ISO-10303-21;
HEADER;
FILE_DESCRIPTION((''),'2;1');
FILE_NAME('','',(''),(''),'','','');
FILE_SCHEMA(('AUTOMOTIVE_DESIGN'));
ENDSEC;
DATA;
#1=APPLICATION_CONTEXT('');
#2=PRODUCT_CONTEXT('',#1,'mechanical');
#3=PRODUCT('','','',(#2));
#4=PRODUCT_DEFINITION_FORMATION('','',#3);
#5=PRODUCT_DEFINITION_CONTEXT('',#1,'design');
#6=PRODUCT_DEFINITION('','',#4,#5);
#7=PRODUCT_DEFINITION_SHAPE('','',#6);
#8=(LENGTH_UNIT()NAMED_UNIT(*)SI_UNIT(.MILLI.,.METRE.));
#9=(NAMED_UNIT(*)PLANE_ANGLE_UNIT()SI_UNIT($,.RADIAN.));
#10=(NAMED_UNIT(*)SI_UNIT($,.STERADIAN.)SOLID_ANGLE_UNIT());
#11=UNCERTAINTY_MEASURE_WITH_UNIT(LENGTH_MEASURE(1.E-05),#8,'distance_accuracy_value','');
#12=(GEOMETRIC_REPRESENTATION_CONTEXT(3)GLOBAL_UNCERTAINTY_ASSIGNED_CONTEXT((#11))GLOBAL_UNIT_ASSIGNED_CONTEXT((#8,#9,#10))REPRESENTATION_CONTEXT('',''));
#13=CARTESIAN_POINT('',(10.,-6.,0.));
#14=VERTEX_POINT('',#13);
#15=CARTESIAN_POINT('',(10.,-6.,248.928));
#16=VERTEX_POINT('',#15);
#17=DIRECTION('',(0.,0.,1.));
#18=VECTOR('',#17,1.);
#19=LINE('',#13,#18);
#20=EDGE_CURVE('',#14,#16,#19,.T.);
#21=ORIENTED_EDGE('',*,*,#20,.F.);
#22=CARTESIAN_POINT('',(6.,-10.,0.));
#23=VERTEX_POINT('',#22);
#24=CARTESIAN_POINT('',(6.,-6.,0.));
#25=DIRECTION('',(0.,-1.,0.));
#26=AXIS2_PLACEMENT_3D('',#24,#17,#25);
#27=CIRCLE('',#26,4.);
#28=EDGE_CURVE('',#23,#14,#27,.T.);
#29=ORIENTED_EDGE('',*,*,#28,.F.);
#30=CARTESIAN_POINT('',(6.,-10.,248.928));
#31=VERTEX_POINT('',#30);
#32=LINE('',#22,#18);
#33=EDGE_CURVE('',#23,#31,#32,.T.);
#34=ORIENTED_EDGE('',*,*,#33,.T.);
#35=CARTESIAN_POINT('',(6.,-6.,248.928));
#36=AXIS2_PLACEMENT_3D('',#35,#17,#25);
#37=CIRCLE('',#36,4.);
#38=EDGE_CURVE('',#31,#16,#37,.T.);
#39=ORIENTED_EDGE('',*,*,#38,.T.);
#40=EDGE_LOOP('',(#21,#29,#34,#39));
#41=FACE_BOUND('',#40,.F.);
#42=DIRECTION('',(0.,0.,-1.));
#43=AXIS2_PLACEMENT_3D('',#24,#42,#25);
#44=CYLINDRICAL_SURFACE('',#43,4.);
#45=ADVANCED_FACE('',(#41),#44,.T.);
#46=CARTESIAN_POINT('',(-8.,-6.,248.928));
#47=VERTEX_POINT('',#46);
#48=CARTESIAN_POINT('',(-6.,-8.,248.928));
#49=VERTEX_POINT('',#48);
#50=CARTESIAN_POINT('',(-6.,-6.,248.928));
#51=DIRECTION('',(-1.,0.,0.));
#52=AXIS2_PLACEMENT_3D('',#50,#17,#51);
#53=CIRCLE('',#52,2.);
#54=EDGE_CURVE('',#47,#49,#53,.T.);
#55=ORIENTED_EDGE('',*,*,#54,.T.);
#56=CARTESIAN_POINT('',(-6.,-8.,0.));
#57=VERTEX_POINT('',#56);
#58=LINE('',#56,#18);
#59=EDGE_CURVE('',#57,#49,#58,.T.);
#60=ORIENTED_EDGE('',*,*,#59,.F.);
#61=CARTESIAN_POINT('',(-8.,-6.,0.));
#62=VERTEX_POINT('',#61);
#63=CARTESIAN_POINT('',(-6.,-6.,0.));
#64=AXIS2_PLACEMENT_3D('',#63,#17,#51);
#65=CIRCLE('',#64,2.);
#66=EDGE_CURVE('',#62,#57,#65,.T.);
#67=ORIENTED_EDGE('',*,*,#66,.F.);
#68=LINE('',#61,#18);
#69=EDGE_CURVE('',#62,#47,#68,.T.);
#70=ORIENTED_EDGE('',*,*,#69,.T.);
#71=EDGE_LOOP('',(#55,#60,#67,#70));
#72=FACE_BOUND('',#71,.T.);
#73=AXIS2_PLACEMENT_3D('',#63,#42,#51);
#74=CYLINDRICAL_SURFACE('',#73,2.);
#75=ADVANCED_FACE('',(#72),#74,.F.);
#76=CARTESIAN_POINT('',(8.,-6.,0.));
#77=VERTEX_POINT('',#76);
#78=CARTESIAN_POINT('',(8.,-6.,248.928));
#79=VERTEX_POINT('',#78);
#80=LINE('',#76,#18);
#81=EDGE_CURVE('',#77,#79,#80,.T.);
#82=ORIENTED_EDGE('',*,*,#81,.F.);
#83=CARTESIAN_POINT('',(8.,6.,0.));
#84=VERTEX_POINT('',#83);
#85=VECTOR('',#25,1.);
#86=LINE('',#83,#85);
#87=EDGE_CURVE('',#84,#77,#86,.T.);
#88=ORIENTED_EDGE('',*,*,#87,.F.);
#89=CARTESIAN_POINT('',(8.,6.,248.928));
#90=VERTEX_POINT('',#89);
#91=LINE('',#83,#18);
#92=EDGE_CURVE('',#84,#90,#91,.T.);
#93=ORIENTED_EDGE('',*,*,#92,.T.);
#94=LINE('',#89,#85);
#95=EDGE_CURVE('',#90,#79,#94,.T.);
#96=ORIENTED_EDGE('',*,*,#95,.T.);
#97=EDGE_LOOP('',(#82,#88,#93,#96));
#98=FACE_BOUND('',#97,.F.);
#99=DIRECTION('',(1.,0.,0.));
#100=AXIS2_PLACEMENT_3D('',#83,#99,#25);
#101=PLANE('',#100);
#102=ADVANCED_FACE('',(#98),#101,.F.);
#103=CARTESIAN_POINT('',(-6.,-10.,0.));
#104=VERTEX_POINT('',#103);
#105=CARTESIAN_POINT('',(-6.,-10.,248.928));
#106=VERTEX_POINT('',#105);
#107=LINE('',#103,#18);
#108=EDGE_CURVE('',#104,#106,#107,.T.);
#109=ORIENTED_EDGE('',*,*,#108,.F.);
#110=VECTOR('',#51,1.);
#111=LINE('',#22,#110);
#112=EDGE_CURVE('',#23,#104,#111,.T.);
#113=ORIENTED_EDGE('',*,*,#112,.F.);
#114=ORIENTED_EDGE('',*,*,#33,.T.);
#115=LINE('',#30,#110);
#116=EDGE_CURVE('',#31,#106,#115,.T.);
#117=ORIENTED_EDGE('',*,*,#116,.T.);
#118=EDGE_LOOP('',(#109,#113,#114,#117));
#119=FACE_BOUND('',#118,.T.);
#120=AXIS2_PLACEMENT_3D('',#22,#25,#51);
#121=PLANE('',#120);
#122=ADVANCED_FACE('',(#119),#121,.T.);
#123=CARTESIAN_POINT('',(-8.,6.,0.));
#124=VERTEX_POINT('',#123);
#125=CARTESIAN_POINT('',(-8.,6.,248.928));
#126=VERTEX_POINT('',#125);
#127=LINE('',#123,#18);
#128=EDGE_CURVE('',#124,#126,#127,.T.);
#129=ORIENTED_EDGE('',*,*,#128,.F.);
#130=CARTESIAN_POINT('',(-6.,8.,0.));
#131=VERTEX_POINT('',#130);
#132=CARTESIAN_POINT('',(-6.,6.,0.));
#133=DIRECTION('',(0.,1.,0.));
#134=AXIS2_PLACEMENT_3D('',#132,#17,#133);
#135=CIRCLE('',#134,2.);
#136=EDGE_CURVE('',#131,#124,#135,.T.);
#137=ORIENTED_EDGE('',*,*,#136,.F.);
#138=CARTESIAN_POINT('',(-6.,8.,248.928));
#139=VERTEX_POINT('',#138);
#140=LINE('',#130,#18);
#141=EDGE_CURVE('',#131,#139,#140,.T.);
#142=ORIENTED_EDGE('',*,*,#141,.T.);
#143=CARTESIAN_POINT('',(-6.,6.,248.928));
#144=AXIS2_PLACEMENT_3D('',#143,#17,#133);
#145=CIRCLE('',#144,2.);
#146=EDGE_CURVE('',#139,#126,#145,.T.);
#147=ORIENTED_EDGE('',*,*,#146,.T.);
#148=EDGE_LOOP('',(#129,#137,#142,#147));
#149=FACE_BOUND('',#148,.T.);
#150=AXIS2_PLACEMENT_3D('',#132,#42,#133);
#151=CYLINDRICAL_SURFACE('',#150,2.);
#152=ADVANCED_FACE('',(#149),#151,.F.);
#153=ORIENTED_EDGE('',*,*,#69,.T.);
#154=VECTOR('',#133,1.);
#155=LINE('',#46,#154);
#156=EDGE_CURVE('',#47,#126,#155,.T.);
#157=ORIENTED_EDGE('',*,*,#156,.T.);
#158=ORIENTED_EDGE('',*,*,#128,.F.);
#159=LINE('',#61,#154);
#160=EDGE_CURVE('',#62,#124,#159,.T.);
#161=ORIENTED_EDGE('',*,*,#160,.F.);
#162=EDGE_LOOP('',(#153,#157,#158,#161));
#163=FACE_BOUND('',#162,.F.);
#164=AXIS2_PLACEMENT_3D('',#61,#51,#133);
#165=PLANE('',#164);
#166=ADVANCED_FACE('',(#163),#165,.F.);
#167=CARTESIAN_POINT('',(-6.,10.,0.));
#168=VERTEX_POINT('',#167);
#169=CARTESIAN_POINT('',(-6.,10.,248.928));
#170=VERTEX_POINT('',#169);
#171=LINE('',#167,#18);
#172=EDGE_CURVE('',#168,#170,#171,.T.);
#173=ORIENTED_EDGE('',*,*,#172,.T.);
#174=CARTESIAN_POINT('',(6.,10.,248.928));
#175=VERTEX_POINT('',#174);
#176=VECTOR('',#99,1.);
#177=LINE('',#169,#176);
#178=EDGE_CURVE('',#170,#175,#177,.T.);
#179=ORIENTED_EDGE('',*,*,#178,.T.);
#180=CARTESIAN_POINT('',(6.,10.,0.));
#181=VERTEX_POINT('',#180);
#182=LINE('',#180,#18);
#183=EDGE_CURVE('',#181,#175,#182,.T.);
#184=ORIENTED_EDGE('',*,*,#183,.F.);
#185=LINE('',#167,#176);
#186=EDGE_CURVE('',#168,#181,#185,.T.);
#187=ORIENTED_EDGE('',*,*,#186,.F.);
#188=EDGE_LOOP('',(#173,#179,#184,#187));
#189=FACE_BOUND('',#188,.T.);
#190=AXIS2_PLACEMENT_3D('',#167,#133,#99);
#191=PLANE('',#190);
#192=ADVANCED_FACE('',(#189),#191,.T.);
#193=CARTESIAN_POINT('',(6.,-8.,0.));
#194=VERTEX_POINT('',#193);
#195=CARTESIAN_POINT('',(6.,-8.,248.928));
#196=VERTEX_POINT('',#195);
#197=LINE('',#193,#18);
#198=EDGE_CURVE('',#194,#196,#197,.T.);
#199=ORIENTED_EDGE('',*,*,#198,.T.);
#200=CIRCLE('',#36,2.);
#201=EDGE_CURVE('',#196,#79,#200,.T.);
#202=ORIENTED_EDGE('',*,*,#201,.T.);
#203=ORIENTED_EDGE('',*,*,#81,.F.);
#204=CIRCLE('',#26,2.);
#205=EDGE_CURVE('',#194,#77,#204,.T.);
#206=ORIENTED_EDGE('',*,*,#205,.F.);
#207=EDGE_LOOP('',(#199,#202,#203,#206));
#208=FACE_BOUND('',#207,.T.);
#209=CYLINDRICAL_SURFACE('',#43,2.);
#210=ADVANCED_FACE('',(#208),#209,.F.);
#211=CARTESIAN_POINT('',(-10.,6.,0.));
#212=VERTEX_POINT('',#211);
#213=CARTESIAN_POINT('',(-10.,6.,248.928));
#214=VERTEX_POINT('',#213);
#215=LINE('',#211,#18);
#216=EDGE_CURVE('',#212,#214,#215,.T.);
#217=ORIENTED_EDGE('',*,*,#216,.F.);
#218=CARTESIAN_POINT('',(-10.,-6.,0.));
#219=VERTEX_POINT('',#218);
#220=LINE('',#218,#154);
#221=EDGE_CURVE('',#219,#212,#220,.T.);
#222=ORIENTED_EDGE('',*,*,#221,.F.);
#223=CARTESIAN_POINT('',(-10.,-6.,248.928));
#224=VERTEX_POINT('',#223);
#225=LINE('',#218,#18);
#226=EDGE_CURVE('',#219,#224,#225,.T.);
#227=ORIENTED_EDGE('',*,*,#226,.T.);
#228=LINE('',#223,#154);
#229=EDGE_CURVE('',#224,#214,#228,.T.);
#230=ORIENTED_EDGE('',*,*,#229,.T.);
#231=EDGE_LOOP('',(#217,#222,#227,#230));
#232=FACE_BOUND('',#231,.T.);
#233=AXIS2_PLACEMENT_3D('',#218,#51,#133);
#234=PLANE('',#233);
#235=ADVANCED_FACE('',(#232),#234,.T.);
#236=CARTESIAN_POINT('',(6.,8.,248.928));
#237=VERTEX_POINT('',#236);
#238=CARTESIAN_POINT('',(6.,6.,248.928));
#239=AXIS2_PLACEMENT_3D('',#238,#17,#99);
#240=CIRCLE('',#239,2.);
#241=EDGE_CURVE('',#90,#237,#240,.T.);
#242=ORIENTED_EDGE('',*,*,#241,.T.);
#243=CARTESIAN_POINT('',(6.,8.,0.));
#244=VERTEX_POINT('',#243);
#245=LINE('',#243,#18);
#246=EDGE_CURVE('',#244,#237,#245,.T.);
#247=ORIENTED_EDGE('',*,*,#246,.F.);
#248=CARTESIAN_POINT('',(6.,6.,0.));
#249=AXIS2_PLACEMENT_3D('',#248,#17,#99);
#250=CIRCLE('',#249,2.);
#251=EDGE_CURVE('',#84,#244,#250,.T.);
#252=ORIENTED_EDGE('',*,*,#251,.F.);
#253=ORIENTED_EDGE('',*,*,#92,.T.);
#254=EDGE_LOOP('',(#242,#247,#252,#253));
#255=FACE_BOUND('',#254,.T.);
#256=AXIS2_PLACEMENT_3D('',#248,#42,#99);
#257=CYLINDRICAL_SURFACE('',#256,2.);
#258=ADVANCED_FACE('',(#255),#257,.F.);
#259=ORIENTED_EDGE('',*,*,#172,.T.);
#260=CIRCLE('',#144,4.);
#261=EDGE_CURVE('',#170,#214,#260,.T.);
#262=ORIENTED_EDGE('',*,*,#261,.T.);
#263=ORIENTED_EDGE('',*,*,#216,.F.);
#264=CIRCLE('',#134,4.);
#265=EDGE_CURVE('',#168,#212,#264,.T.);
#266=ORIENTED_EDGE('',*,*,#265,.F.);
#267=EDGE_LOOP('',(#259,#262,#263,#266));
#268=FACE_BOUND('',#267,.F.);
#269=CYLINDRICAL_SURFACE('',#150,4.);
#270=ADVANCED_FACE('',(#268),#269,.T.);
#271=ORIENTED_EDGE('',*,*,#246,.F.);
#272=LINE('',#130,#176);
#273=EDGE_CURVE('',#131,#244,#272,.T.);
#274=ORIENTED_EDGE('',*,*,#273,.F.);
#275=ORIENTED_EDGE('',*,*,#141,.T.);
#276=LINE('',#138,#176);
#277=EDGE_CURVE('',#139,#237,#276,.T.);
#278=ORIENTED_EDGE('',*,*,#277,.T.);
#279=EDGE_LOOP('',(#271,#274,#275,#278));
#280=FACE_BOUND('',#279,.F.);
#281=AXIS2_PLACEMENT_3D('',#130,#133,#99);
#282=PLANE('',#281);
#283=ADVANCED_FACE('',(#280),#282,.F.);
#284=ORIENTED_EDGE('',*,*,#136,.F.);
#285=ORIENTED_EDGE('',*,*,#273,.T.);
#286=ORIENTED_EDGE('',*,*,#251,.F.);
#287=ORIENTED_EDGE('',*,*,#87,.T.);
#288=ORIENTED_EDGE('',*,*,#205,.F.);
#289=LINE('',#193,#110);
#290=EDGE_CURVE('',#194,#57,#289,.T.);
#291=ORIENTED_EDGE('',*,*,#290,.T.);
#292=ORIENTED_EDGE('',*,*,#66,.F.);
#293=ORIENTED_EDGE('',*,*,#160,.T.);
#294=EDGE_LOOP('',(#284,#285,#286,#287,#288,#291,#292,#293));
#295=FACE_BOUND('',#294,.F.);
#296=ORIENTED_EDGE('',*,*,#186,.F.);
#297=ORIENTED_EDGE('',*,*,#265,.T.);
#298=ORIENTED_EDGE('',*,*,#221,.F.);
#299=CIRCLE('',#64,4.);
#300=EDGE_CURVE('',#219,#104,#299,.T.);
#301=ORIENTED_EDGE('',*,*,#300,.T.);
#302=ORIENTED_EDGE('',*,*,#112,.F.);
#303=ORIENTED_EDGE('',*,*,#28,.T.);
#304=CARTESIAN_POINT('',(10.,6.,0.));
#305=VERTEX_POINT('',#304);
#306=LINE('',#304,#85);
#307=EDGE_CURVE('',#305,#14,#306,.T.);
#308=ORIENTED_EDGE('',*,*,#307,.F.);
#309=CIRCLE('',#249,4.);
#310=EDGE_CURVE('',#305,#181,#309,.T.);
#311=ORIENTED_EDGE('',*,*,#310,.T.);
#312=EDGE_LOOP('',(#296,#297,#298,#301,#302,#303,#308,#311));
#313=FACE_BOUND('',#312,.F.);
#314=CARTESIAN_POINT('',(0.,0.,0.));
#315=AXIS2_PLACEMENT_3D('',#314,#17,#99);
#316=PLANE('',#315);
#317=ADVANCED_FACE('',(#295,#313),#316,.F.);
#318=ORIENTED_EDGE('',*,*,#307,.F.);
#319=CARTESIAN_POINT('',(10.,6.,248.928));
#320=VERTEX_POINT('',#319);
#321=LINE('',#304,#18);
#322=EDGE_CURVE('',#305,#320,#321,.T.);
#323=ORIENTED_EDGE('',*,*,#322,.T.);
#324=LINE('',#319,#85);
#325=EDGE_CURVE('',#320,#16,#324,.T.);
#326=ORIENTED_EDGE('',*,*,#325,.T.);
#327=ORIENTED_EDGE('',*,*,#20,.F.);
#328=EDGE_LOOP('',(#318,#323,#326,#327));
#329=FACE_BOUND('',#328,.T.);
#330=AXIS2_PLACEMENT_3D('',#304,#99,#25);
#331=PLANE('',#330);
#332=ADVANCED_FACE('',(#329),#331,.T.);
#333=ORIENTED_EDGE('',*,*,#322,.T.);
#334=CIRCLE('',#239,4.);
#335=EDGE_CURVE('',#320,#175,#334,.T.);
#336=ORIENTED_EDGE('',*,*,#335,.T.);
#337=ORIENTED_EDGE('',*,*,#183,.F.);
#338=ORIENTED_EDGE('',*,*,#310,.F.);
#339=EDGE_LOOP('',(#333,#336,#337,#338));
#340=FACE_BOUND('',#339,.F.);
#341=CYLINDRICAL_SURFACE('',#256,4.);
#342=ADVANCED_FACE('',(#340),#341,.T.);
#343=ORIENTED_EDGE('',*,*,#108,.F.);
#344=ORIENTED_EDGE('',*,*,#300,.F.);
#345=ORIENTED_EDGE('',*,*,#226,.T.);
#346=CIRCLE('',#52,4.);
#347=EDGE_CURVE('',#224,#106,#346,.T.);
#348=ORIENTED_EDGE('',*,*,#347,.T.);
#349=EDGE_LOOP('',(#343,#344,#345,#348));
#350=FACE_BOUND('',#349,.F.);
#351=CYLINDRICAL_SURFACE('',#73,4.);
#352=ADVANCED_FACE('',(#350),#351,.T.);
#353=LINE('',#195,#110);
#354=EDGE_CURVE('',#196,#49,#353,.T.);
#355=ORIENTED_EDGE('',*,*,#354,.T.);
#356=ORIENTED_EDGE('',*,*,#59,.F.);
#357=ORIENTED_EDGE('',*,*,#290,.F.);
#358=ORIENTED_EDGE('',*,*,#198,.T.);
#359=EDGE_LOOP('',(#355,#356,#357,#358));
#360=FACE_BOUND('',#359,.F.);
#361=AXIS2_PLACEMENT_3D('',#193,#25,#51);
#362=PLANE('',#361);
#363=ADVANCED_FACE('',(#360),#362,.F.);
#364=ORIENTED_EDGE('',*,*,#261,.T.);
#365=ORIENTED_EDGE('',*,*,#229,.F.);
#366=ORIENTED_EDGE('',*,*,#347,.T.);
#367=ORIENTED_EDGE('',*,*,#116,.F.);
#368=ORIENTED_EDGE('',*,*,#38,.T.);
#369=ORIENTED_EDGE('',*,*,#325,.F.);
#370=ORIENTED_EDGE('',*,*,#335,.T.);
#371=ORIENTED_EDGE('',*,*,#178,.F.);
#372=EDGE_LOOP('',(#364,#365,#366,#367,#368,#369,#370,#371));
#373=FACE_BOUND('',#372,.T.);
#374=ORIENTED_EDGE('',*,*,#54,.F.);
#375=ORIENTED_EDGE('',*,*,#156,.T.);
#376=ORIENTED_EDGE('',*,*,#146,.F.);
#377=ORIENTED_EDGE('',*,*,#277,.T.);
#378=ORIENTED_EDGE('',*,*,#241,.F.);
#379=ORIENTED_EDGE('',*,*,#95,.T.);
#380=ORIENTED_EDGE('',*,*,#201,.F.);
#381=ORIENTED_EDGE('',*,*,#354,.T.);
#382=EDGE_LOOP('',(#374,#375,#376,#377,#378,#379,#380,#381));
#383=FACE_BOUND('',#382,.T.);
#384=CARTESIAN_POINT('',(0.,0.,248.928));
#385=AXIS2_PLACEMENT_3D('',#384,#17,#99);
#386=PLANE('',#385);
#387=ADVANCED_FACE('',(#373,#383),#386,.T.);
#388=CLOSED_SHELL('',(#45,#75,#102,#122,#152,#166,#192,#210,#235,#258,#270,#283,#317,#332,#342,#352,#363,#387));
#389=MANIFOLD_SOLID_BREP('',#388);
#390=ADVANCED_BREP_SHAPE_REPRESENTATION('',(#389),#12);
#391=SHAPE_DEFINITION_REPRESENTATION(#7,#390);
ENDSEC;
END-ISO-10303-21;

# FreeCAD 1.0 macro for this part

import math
import FreeCAD as App
import Part
import Sketcher
from FreeCAD import Vector

doc = App.newDocument("Part")
params = doc.addObject("Spreadsheet::Sheet", "Params")
for row, (alias, value) in enumerate([
    ("sketch1_radius", "4 mm"),
    ("sketch1_radius2", "2 mm"),
    ("pad1_length", "248.928 mm"),
], start=1):
    params.set(f"A{row}", alias)
    params.set(f"B{row}", "=" + value)
    params.setAlias(f"B{row}", alias)

body = doc.addObject("PartDesign::Body", "Body")

# Sketch on XY plane
sketch1 = doc.addObject("Sketcher::SketchObject", "Sketch")
body.addObject(sketch1)
sketch1.AttachmentSupport = (doc.XY_Plane, [""])
sketch1.MapMode = "FlatFace"
sketch1.addGeometry([
    Part.LineSegment(Vector(-10, 6, 0), Vector(-10, -6, 0)),  # 0
    Part.ArcOfCircle(Part.Circle(Vector(-6, -6, 0), Vector(0, 0, 1), 4), math.radians(180), math.radians(270)),  # 1
    Part.LineSegment(Vector(-6, -10, 0), Vector(6, -10, 0)),  # 2
    Part.ArcOfCircle(Part.Circle(Vector(6, -6, 0), Vector(0, 0, 1), 4), math.radians(-90), math.radians(0)),  # 3
    Part.LineSegment(Vector(10, -6, 0), Vector(10, 6, 0)),  # 4
    Part.ArcOfCircle(Part.Circle(Vector(6, 6, 0), Vector(0, 0, 1), 4), math.radians(0), math.radians(90)),  # 5
    Part.LineSegment(Vector(6, 10, 0), Vector(-6, 10, 0)),  # 6
    Part.ArcOfCircle(Part.Circle(Vector(-6, 6, 0), Vector(0, 0, 1), 4), math.radians(90), math.radians(180)),  # 7
    Part.ArcOfCircle(Part.Circle(Vector(-6, 6, 0), Vector(0, 0, 1), 2), math.radians(90), math.radians(180)),  # 8
    Part.LineSegment(Vector(-6, 8, 0), Vector(6, 8, 0)),  # 9
    Part.ArcOfCircle(Part.Circle(Vector(6, 6, 0), Vector(0, 0, 1), 2), math.radians(0), math.radians(90)),  # 10
    Part.LineSegment(Vector(8, 6, 0), Vector(8, -6, 0)),  # 11
    Part.ArcOfCircle(Part.Circle(Vector(6, -6, 0), Vector(0, 0, 1), 2), math.radians(-90), math.radians(0)),  # 12
    Part.LineSegment(Vector(6, -8, 0), Vector(-6, -8, 0)),  # 13
    Part.ArcOfCircle(Part.Circle(Vector(-6, -6, 0), Vector(0, 0, 1), 2), math.radians(180), math.radians(270)),  # 14
    Part.LineSegment(Vector(-8, -6, 0), Vector(-8, 6, 0)),  # 15
], False)
sketch1.addConstraint([
    Sketcher.Constraint("Tangent", 0, 2, 1, 1),
    Sketcher.Constraint("Tangent", 1, 2, 2, 1),
    Sketcher.Constraint("Tangent", 2, 2, 3, 1),
    Sketcher.Constraint("Tangent", 3, 2, 4, 1),
    Sketcher.Constraint("Tangent", 4, 2, 5, 1),
    Sketcher.Constraint("Tangent", 5, 2, 6, 1),
    Sketcher.Constraint("Tangent", 6, 2, 7, 1),
    Sketcher.Constraint("Tangent", 7, 2, 0, 1),
    Sketcher.Constraint("Tangent", 8, 1, 9, 1),
    Sketcher.Constraint("Tangent", 9, 2, 10, 2),
    Sketcher.Constraint("Tangent", 10, 1, 11, 1),
    Sketcher.Constraint("Tangent", 11, 2, 12, 2),
    Sketcher.Constraint("Tangent", 12, 1, 13, 1),
    Sketcher.Constraint("Tangent", 13, 2, 14, 2),
    Sketcher.Constraint("Tangent", 14, 1, 15, 1),
    Sketcher.Constraint("Tangent", 15, 2, 8, 2),
    Sketcher.Constraint("Vertical", 0),
    Sketcher.Constraint("Horizontal", 2),
    Sketcher.Constraint("Vertical", 4),
    Sketcher.Constraint("Horizontal", 6),
    Sketcher.Constraint("Horizontal", 9),
    Sketcher.Constraint("Vertical", 11),
    Sketcher.Constraint("Horizontal", 13),
    Sketcher.Constraint("Vertical", 15),
    Sketcher.Constraint("Coincident", 8, 3, 7, 3),
    Sketcher.Constraint("Coincident", 10, 3, 5, 3),
    Sketcher.Constraint("Coincident", 12, 3, 3, 3),
    Sketcher.Constraint("Equal", 1, 3),
    Sketcher.Constraint("Equal", 3, 5),
    Sketcher.Constraint("Equal", 5, 7),
    Sketcher.Constraint("Equal", 12, 14),
    Sketcher.Constraint("Symmetric", 1, 3, 5, 3, -1, 1),
    Sketcher.Constraint("Equal", 13, 0),
    Sketcher.Constraint("Radius", 1, 4.0),
    Sketcher.Constraint("Radius", 8, 2.0),
    Sketcher.Constraint("DistanceX", 0, 2, -1, 1, 10.0),
])
sketch1.setExpression("Constraints[33]", "Params.sketch1_radius")
sketch1.setExpression("Constraints[34]", "Params.sketch1_radius2")
pad1 = doc.addObject("PartDesign::Pad", "Pad")
body.addObject(pad1)
pad1.Profile = sketch1
pad1.setExpression("Length", "Params.pad1_length")

doc.recompute()
